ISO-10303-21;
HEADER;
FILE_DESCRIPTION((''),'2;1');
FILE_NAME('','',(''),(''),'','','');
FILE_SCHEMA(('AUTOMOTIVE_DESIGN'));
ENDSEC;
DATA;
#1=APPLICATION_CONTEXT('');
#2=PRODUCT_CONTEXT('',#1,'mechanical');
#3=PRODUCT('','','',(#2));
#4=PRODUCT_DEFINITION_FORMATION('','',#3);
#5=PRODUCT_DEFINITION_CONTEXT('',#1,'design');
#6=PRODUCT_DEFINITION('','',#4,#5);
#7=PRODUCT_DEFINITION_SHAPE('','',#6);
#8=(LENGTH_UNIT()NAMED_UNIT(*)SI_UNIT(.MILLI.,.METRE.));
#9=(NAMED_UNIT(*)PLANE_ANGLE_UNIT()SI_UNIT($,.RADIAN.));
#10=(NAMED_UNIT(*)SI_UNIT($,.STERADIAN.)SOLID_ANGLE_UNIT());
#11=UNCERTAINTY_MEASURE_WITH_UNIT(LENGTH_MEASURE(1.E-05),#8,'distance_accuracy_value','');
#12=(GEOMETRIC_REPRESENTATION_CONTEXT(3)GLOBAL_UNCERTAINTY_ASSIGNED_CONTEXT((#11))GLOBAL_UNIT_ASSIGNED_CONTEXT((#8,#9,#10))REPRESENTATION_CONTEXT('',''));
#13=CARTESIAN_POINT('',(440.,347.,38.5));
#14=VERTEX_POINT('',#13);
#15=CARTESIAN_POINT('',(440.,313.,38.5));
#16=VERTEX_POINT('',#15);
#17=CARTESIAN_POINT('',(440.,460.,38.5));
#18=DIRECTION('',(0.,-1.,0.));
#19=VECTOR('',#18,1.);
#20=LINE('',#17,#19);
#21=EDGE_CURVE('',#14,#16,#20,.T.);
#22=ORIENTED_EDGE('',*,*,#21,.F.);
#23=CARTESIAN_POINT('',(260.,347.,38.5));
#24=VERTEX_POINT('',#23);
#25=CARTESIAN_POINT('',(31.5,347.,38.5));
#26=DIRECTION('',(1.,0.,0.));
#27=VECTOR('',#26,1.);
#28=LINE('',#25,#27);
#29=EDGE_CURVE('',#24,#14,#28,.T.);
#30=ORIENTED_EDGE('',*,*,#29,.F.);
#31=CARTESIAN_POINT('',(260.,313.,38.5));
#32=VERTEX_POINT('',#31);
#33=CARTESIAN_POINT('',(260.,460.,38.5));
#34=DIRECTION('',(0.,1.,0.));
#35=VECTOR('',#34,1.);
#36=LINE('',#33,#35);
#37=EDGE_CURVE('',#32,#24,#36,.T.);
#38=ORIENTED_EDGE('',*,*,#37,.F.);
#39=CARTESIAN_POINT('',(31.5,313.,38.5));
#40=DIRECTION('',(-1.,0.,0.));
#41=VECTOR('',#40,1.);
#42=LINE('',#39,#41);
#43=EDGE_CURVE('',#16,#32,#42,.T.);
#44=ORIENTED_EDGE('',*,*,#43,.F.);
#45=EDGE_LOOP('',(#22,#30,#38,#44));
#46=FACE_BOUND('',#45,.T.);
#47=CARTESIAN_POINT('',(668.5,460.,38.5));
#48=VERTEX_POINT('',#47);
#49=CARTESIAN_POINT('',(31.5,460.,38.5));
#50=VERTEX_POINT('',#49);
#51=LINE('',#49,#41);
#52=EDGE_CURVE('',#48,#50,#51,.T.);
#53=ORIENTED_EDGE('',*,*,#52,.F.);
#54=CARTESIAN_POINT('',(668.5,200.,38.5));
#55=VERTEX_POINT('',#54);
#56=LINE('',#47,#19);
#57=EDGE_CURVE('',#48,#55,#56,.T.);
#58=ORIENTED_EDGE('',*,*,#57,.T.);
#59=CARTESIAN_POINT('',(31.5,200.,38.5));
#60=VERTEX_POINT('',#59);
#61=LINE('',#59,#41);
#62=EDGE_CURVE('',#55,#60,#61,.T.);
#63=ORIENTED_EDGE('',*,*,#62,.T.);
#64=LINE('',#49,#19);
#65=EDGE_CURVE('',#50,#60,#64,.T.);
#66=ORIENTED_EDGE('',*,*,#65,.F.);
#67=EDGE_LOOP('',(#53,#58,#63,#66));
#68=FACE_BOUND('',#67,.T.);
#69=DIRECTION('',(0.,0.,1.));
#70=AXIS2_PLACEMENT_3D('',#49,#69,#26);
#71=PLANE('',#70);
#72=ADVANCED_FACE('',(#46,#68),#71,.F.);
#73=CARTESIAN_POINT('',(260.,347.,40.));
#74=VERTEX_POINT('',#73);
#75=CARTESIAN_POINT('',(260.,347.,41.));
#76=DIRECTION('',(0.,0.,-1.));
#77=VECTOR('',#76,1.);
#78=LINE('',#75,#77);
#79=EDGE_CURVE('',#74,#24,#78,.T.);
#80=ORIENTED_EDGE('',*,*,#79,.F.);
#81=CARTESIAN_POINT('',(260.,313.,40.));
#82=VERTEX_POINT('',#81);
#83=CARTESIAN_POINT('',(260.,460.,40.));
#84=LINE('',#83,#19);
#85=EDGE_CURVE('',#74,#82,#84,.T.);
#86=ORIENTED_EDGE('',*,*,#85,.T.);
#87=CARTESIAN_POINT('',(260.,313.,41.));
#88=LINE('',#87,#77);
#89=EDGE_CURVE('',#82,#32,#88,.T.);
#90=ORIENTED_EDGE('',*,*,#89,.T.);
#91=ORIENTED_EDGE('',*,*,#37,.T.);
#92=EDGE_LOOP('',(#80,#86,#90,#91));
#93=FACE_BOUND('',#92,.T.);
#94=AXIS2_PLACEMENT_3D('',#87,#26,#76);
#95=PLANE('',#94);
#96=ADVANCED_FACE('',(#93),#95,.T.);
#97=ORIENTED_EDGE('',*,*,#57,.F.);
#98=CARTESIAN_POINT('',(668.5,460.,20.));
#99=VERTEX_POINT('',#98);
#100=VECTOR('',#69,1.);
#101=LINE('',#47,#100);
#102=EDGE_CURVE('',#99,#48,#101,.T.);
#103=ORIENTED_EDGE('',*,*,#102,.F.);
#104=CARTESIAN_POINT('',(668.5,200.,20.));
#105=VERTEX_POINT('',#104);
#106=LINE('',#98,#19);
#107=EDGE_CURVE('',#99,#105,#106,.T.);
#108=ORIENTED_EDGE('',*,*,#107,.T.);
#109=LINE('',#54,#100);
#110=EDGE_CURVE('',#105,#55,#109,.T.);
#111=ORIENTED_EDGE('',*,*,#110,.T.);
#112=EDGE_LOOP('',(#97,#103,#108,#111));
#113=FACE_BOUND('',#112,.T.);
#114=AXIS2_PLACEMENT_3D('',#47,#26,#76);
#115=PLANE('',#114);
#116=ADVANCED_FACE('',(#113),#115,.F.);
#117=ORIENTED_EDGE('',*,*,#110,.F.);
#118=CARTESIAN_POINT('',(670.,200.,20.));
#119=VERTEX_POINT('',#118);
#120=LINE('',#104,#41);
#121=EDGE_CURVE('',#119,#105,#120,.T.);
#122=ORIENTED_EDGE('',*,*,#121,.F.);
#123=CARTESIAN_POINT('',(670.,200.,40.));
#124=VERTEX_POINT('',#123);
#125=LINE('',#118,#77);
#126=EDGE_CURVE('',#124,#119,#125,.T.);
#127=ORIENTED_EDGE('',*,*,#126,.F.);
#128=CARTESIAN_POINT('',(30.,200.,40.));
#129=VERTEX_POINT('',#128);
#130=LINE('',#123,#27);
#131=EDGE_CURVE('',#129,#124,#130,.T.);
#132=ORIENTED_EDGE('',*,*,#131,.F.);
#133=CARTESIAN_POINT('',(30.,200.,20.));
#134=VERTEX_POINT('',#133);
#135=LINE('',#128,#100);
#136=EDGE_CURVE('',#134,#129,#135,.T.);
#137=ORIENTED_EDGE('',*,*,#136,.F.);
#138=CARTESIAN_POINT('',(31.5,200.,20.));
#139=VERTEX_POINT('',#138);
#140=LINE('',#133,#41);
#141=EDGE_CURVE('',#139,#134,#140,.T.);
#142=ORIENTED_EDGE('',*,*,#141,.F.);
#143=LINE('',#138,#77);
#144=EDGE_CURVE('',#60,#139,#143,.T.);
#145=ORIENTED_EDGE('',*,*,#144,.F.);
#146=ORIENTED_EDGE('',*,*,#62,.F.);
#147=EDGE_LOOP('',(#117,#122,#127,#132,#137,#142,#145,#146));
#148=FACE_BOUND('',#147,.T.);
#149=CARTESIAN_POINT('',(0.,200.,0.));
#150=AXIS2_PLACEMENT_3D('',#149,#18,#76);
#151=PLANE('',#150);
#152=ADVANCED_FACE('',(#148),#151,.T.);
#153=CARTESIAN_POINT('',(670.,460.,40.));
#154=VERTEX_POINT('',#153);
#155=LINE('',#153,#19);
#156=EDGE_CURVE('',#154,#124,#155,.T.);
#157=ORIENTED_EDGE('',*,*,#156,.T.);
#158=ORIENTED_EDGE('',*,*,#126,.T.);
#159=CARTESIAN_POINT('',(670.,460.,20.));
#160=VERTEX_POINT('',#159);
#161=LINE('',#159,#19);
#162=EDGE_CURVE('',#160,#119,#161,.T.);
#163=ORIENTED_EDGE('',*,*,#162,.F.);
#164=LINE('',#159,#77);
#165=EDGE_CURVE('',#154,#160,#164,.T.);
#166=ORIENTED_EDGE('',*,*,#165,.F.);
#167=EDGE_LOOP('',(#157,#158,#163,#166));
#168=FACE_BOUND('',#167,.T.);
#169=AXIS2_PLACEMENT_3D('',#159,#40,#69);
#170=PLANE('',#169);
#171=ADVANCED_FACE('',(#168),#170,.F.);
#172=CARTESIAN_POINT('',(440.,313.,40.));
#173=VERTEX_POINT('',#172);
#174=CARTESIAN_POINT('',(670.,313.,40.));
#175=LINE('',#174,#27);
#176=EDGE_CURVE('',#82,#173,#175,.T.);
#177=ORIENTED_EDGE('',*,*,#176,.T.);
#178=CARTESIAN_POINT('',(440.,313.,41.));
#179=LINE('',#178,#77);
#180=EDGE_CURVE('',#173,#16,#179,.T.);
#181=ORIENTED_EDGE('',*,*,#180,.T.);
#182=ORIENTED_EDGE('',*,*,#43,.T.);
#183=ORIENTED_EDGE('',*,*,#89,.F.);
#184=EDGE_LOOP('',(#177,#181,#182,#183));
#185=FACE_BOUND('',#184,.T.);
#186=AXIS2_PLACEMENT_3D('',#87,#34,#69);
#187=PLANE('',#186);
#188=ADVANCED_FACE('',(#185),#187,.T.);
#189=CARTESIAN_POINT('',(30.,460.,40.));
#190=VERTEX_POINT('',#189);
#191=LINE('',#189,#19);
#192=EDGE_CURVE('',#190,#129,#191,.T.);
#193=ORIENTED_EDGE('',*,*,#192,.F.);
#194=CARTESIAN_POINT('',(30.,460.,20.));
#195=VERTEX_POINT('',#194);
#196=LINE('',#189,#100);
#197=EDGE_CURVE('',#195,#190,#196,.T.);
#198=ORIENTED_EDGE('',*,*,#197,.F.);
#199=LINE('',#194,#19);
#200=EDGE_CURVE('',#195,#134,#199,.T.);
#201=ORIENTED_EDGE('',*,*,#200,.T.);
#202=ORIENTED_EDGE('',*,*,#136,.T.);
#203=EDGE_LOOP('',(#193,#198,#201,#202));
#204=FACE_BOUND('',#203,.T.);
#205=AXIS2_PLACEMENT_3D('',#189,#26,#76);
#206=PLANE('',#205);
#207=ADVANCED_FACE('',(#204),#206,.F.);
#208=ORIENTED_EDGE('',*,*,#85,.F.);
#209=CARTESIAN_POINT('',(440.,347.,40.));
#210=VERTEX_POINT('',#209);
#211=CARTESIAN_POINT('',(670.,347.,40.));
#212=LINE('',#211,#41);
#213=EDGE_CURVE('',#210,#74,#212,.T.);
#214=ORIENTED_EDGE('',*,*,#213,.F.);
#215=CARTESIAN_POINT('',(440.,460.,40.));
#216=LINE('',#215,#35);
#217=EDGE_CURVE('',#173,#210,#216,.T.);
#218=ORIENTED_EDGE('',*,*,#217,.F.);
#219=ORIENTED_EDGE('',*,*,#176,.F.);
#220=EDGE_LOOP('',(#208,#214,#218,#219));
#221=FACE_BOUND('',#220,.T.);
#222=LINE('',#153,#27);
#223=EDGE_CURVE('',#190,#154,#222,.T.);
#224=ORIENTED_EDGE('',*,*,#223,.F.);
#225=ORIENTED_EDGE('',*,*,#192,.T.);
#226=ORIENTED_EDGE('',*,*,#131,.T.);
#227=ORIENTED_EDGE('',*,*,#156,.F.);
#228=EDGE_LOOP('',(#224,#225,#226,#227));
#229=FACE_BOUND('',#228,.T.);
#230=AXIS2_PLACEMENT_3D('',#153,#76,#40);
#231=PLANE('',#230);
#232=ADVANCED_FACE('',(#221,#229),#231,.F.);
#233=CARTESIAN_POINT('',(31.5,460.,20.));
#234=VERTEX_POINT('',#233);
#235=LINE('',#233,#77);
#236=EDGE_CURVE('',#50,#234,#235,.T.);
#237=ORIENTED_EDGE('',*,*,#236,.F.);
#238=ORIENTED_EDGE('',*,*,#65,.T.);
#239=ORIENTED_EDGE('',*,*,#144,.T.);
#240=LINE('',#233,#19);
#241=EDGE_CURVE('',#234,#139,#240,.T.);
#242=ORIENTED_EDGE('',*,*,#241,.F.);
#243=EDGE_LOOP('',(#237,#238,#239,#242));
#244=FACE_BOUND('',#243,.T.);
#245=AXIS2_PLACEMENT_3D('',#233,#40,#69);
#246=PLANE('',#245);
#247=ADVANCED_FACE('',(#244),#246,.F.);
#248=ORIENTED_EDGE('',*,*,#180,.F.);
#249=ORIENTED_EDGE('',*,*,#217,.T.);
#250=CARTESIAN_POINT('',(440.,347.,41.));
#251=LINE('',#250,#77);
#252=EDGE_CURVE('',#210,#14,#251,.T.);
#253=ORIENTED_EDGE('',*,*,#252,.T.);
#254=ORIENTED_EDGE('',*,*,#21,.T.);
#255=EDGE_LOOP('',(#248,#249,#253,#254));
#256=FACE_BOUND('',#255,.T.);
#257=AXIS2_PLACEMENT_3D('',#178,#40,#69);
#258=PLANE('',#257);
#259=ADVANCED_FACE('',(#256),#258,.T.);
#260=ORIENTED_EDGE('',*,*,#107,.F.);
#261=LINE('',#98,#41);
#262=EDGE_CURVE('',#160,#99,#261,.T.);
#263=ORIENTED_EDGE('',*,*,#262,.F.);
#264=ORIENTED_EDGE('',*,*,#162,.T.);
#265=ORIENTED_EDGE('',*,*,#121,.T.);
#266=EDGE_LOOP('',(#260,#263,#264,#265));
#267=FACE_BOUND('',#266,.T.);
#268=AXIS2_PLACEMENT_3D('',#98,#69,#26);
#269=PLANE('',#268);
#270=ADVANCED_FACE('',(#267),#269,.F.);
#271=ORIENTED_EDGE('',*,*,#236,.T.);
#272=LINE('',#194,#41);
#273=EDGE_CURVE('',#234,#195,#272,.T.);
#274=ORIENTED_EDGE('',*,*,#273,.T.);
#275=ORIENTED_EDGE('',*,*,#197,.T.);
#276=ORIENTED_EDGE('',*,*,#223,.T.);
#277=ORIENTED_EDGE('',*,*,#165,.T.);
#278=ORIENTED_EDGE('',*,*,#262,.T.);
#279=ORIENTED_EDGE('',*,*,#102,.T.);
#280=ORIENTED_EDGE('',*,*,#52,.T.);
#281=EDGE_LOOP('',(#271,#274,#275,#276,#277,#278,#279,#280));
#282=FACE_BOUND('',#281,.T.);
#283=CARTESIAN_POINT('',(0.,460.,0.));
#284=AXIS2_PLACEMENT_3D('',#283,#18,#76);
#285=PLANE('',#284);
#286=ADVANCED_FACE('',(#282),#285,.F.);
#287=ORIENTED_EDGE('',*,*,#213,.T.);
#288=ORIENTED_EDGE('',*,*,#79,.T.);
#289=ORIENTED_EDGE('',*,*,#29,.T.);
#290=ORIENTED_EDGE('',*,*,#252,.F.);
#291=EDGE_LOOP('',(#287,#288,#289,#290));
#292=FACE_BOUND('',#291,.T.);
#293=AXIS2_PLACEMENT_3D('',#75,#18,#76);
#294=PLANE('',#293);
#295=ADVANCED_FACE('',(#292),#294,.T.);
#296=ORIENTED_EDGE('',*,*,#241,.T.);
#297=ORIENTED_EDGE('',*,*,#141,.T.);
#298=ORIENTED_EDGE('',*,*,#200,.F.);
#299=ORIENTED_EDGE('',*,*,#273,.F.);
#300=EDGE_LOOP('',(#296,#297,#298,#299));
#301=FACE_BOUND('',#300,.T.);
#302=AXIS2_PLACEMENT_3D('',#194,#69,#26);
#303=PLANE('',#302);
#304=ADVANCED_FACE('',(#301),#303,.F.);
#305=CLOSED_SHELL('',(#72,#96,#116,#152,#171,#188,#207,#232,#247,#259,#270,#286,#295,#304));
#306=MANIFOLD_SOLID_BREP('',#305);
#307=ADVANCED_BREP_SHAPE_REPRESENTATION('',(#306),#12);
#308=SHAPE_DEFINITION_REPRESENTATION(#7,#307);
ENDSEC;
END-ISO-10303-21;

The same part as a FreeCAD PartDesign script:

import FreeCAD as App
import Part
import Sketcher
from FreeCAD import Vector


def add_polygon(sketch, points):
    """Adds a closed chain of lines whose ends are joined by coincident constraints."""
    first, n = sketch.GeometryCount, len(points)
    for a, b in zip(points, points[1:] + points[:1]):
        sketch.addGeometry(Part.LineSegment(App.Vector(*a, 0), App.Vector(*b, 0)), False)
    for i in range(n):
        sketch.addConstraint(Sketcher.Constraint("Coincident", first + i, 2, first + (i + 1) % n, 1))

doc = App.newDocument("Part")
body = doc.addObject("PartDesign::Body", "Body")

sketch1 = body.newObject("Sketcher::SketchObject", "Sketch")
sketch1.AttachmentSupport = (doc.getObject("XZ_Plane"), [""])
sketch1.MapMode = "FlatFace"
sketch1.AttachmentOffset = App.Placement(Vector(0, 0, -200), App.Rotation())
add_polygon(sketch1, [(30, 20), (30, 40), (670, 40), (670, 20), (668.5, 20), (668.5, 38.5), (31.5, 38.5), (31.5, 20)])
sketch1.addConstraint([
    Sketcher.Constraint("Vertical", 0),
    Sketcher.Constraint("Horizontal", 1),
    Sketcher.Constraint("Vertical", 2),
    Sketcher.Constraint("Horizontal", 3),
    Sketcher.Constraint("Vertical", 4),
    Sketcher.Constraint("Horizontal", 5),
    Sketcher.Constraint("Vertical", 6),
    Sketcher.Constraint("Horizontal", 7),
    Sketcher.Constraint("Horizontal", 3, 2, 6, 2),
    Sketcher.Constraint("Equal", 3, 7),
    Sketcher.Constraint("DistanceX", 1, 1, 1, 2, 640.0),
    Sketcher.Constraint("DistanceX", 5, 2, 5, 1, 637.0),
    Sketcher.Constraint("DistanceY", 0, 1, 0, 2, 20.0),
    Sketcher.Constraint("DistanceY", 4, 1, 4, 2, 18.5),
    Sketcher.Constraint("DistanceX", -1, 1, 0, 2, 30.0),
    Sketcher.Constraint("DistanceY", -1, 1, 0, 2, 40.0),
])
pad1 = body.newObject("PartDesign::Pad", "Pad")
pad1.Profile = sketch1
pad1.Length = 260
pad1.Reversed = True

sketch2 = body.newObject("Sketcher::SketchObject", "Sketch001")
sketch2.AttachmentSupport = (doc.getObject("XY_Plane"), [""])
sketch2.MapMode = "FlatFace"
sketch2.AttachmentOffset = App.Placement(Vector(0, 0, 27), App.Rotation())
add_polygon(sketch2, [(260, 347), (260, 313), (440, 313), (440, 347)])
sketch2.addConstraint([
    Sketcher.Constraint("Vertical", 0),
    Sketcher.Constraint("Horizontal", 1),
    Sketcher.Constraint("Vertical", 2),
    Sketcher.Constraint("Horizontal", 3),
    Sketcher.Constraint("DistanceX", 1, 1, 1, 2, 180.0),
    Sketcher.Constraint("DistanceY", 0, 2, 0, 1, 34.0),
    Sketcher.Constraint("DistanceX", -1, 1, 0, 2, 260.0),
    Sketcher.Constraint("DistanceY", -1, 1, 0, 2, 313.0),
])
pocket1 = body.newObject("PartDesign::Pocket", "Pocket")
pocket1.Profile = sketch2
pocket1.Length = 14
pocket1.Reversed = True

doc.recompute()
